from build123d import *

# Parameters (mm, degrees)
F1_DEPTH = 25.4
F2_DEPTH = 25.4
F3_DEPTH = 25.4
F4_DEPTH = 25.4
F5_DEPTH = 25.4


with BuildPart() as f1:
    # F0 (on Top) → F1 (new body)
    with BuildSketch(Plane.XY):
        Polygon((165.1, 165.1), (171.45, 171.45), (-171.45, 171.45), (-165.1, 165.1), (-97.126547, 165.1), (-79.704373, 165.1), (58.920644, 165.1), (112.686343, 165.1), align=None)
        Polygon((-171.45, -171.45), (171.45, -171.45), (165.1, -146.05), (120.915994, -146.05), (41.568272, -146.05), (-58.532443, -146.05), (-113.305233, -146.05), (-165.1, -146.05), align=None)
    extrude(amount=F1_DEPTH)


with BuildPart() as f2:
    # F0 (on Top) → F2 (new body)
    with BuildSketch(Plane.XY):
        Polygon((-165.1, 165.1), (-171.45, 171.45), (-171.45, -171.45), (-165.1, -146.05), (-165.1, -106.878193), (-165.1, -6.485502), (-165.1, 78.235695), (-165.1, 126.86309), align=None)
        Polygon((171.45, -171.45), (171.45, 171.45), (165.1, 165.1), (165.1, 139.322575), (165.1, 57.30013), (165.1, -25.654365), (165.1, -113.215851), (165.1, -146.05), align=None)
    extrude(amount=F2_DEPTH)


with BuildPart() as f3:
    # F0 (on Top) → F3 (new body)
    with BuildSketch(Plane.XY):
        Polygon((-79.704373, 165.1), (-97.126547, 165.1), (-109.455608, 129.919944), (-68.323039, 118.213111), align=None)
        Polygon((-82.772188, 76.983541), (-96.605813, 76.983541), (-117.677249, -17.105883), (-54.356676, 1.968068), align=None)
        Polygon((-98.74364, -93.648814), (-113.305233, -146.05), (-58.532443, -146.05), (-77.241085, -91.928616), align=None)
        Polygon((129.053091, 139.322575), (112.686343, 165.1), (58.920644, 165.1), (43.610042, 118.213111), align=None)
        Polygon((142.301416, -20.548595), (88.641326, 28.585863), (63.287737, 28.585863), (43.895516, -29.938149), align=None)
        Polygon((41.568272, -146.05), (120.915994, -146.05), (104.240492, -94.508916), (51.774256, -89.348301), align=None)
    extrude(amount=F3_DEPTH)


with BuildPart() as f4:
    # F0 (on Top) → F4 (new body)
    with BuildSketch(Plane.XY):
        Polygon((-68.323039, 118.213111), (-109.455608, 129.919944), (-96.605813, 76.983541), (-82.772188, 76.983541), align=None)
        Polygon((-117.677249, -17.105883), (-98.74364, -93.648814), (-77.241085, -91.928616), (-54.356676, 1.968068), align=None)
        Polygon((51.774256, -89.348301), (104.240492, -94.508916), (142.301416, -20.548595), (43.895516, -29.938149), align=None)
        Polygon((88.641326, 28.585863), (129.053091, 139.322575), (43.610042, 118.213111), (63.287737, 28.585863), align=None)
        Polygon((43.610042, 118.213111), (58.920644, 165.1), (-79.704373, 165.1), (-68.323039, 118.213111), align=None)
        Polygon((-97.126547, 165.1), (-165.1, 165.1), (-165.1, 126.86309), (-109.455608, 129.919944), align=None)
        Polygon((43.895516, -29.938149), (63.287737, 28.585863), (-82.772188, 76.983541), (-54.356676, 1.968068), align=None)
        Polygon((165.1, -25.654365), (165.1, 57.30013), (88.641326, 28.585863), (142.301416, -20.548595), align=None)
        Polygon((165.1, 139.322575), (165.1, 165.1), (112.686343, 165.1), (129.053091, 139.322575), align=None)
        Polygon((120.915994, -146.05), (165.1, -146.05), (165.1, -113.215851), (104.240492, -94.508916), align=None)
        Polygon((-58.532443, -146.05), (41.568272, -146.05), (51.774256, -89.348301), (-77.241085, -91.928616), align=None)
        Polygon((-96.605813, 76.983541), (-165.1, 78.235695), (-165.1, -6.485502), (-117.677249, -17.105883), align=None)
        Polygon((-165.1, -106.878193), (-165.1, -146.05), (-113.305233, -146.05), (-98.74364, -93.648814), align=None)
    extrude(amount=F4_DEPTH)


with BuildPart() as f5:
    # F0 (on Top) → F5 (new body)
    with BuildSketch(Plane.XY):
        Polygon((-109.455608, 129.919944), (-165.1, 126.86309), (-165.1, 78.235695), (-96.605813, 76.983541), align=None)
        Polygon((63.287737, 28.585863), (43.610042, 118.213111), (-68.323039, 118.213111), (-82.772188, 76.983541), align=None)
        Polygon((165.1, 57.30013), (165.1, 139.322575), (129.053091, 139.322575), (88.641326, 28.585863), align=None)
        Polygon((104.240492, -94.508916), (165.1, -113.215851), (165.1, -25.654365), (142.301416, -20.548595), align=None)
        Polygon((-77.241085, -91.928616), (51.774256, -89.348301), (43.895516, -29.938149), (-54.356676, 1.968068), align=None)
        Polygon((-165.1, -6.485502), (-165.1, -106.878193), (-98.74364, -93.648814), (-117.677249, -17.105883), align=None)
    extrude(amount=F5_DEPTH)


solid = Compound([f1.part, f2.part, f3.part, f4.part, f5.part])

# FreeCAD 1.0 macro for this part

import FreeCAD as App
import Part
import Sketcher
from FreeCAD import Vector
Q = App.Units.Quantity

doc = App.newDocument("Part")
body = doc.addObject("PartDesign::Body", "Body")
body.AllowCompound = True

# Sketch on XY plane
sketch1 = body.newObject("Sketcher::SketchObject", "Sketch")
sketch1.AttachmentSupport = (doc.getObject("XY_Plane"), [""])
sketch1.MapMode = "FlatFace"
sketch1.addGeometry(Part.LineSegment(Vector(165.1, 165.1, 0), Vector(171.45, 171.45, 0)), False)
sketch1.addGeometry(Part.LineSegment(Vector(171.45, 171.45, 0), Vector(-171.45, 171.45, 0)), False)
sketch1.addGeometry(Part.LineSegment(Vector(-171.45, 171.45, 0), Vector(-165.1, 165.1, 0)), False)
sketch1.addGeometry(Part.LineSegment(Vector(-165.1, 165.1, 0), Vector(165.1, 165.1, 0)), False)
sketch1.addGeometry(Part.LineSegment(Vector(-171.45, -171.45, 0), Vector(171.45, -171.45, 0)), False)
sketch1.addGeometry(Part.LineSegment(Vector(171.45, -171.45, 0), Vector(165.1, -146.05, 0)), False)
sketch1.addGeometry(Part.LineSegment(Vector(165.1, -146.05, 0), Vector(-165.1, -146.05, 0)), False)
sketch1.addGeometry(Part.LineSegment(Vector(-165.1, -146.05, 0), Vector(-171.45, -171.45, 0)), False)
sketch1.addConstraint(Sketcher.Constraint("Coincident", 0, 2, 1, 1))
sketch1.addConstraint(Sketcher.Constraint("Coincident", 1, 2, 2, 1))
sketch1.addConstraint(Sketcher.Constraint("Coincident", 2, 2, 3, 1))
sketch1.addConstraint(Sketcher.Constraint("Coincident", 3, 2, 0, 1))
sketch1.addConstraint(Sketcher.Constraint("Coincident", 4, 2, 5, 1))
sketch1.addConstraint(Sketcher.Constraint("Coincident", 5, 2, 6, 1))
sketch1.addConstraint(Sketcher.Constraint("Coincident", 6, 2, 7, 1))
sketch1.addConstraint(Sketcher.Constraint("Coincident", 7, 2, 4, 1))
sketch1.addConstraint(Sketcher.Constraint("Horizontal", 1))
sketch1.addConstraint(Sketcher.Constraint("Horizontal", 3))
sketch1.addConstraint(Sketcher.Constraint("Horizontal", 4))
sketch1.addConstraint(Sketcher.Constraint("Horizontal", 6))
sketch1.addConstraint(Sketcher.Constraint("Symmetric", 1, 2, 4, 2, -1, 1))
sketch1.addConstraint(Sketcher.Constraint("Perpendicular", 0, 2))
sketch1.addConstraint(Sketcher.Constraint("Vertical", 0, 2, 4, 2))
sketch1.addConstraint(Sketcher.Constraint("Vertical", 3, 2, 5, 2))
sketch1.addConstraint(Sketcher.Constraint("Vertical", 2, 2, 6, 2))
sketch1.addConstraint(Sketcher.Constraint("Vertical", 1, 2, 7, 2))
sketch1.addConstraint(Sketcher.Constraint("Equal", 0, 2))
sketch1.addConstraint(Sketcher.Constraint("DistanceX", 3, 1, 3, 2, Q("13 in")))
sketch1.addConstraint(Sketcher.Constraint("DistanceX", 1, 2, 1, 1, Q("13.5 in")))
sketch1.addConstraint(Sketcher.Constraint("DistanceY", 4, 2, 5, 2, Q("1 in")))
sketch1.addConstraint(Sketcher.Constraint("DistanceY", -1, 1, 2, 2, Q("6.5 in")))
pad1 = body.newObject("PartDesign::Pad", "Pad")
pad1.Profile = sketch1
pad1.Length = Q("1 in")
body2 = doc.addObject("PartDesign::Body", "Body001")
body2.AllowCompound = True

# Sketch on XY plane
sketch2 = body2.newObject("Sketcher::SketchObject", "Sketch001")
sketch2.AttachmentSupport = (doc.getObject("XY_Plane001"), [""])
sketch2.MapMode = "FlatFace"
sketch2.addGeometry(Part.LineSegment(Vector(-165.1, 165.1, 0), Vector(-171.45, 171.45, 0)), False)
sketch2.addGeometry(Part.LineSegment(Vector(-171.45, 171.45, 0), Vector(-171.45, -171.45, 0)), False)
sketch2.addGeometry(Part.LineSegment(Vector(-171.45, -171.45, 0), Vector(-165.1, -146.05, 0)), False)
sketch2.addGeometry(Part.LineSegment(Vector(-165.1, -146.05, 0), Vector(-165.1, 165.1, 0)), False)
sketch2.addGeometry(Part.LineSegment(Vector(171.45, -171.45, 0), Vector(171.45, 171.45, 0)), False)
sketch2.addGeometry(Part.LineSegment(Vector(171.45, 171.45, 0), Vector(165.1, 165.1, 0)), False)
sketch2.addGeometry(Part.LineSegment(Vector(165.1, 165.1, 0), Vector(165.1, -146.05, 0)), False)
sketch2.addGeometry(Part.LineSegment(Vector(165.1, -146.05, 0), Vector(171.45, -171.45, 0)), False)
sketch2.addConstraint(Sketcher.Constraint("Coincident", 0, 2, 1, 1))
sketch2.addConstraint(Sketcher.Constraint("Coincident", 1, 2, 2, 1))
sketch2.addConstraint(Sketcher.Constraint("Coincident", 2, 2, 3, 1))
sketch2.addConstraint(Sketcher.Constraint("Coincident", 3, 2, 0, 1))
sketch2.addConstraint(Sketcher.Constraint("Coincident", 4, 2, 5, 1))
sketch2.addConstraint(Sketcher.Constraint("Coincident", 5, 2, 6, 1))
sketch2.addConstraint(Sketcher.Constraint("Coincident", 6, 2, 7, 1))
sketch2.addConstraint(Sketcher.Constraint("Coincident", 7, 2, 4, 1))
sketch2.addConstraint(Sketcher.Constraint("Vertical", 1))
sketch2.addConstraint(Sketcher.Constraint("Vertical", 3))
sketch2.addConstraint(Sketcher.Constraint("Vertical", 4))
sketch2.addConstraint(Sketcher.Constraint("Vertical", 6))
sketch2.addConstraint(Sketcher.Constraint("Symmetric", 1, 2, 4, 2, -1, 1))
sketch2.addConstraint(Sketcher.Constraint("Symmetric", 3, 2, 5, 2, -2))
sketch2.addConstraint(Sketcher.Constraint("Perpendicular", 0, 5))
sketch2.addConstraint(Sketcher.Constraint("Horizontal", 0, 2, 4, 2))
sketch2.addConstraint(Sketcher.Constraint("Horizontal", 2, 2, 6, 2))
sketch2.addConstraint(Sketcher.Constraint("Horizontal", 1, 2, 7, 2))
sketch2.addConstraint(Sketcher.Constraint("DistanceY", 1, 2, 1, 1, Q("13.5 in")))
sketch2.addConstraint(Sketcher.Constraint("DistanceY", 1, 2, 2, 2, Q("1 in")))
sketch2.addConstraint(Sketcher.Constraint("DistanceX", 3, 2, 5, 2, Q("13 in")))
sketch2.addConstraint(Sketcher.Constraint("DistanceY", 3, 1, 3, 2, Q("12.25 in")))
pad2 = body2.newObject("PartDesign::Pad", "Pad001")
pad2.Profile = sketch2
pad2.Length = Q("1 in")
body3 = doc.addObject("PartDesign::Body", "Body002")
body3.AllowCompound = True

# Sketch on XY plane
sketch3 = body3.newObject("Sketcher::SketchObject", "Sketch002")
sketch3.AttachmentSupport = (doc.getObject("XY_Plane002"), [""])
sketch3.MapMode = "FlatFace"
sketch3.addGeometry(Part.LineSegment(Vector(-79.704373, 165.1, 0), Vector(-97.126547, 165.1, 0)), False)
sketch3.addGeometry(Part.LineSegment(Vector(-97.126547, 165.1, 0), Vector(-109.455608, 129.919944, 0)), False)
sketch3.addGeometry(Part.LineSegment(Vector(-109.455608, 129.919944, 0), Vector(-68.323039, 118.213111, 0)), False)
sketch3.addGeometry(Part.LineSegment(Vector(-68.323039, 118.213111, 0), Vector(-79.704373, 165.1, 0)), False)
sketch3.addGeometry(Part.LineSegment(Vector(-82.772188, 76.983541, 0), Vector(-96.605813, 76.983541, 0)), False)
sketch3.addGeometry(Part.LineSegment(Vector(-96.605813, 76.983541, 0), Vector(-117.677249, -17.105883, 0)), False)
sketch3.addGeometry(Part.LineSegment(Vector(-117.677249, -17.105883, 0), Vector(-54.356676, 1.968068, 0)), False)
sketch3.addGeometry(Part.LineSegment(Vector(-54.356676, 1.968068, 0), Vector(-82.772188, 76.983541, 0)), False)
sketch3.addGeometry(Part.LineSegment(Vector(-98.74364, -93.648814, 0), Vector(-113.305233, -146.05, 0)), False)
sketch3.addGeometry(Part.LineSegment(Vector(-113.305233, -146.05, 0), Vector(-58.532443, -146.05, 0)), False)
sketch3.addGeometry(Part.LineSegment(Vector(-58.532443, -146.05, 0), Vector(-77.241085, -91.928616, 0)), False)
sketch3.addGeometry(Part.LineSegment(Vector(-77.241085, -91.928616, 0), Vector(-98.74364, -93.648814, 0)), False)
sketch3.addGeometry(Part.LineSegment(Vector(129.053091, 139.322575, 0), Vector(112.686343, 165.1, 0)), False)
sketch3.addGeometry(Part.LineSegment(Vector(112.686343, 165.1, 0), Vector(58.920644, 165.1, 0)), False)
sketch3.addGeometry(Part.LineSegment(Vector(58.920644, 165.1, 0), Vector(43.610042, 118.213111, 0)), False)
sketch3.addGeometry(Part.LineSegment(Vector(43.610042, 118.213111, 0), Vector(129.053091, 139.322575, 0)), False)
sketch3.addGeometry(Part.LineSegment(Vector(142.301416, -20.548595, 0), Vector(88.641326, 28.585863, 0)), False)
sketch3.addGeometry(Part.LineSegment(Vector(88.641326, 28.585863, 0), Vector(63.287737, 28.585863, 0)), False)
sketch3.addGeometry(Part.LineSegment(Vector(63.287737, 28.585863, 0), Vector(43.895516, -29.938149, 0)), False)
sketch3.addGeometry(Part.LineSegment(Vector(43.895516, -29.938149, 0), Vector(142.301416, -20.548595, 0)), False)
sketch3.addGeometry(Part.LineSegment(Vector(41.568272, -146.05, 0), Vector(120.915994, -146.05, 0)), False)
sketch3.addGeometry(Part.LineSegment(Vector(120.915994, -146.05, 0), Vector(104.240492, -94.508916, 0)), False)
sketch3.addGeometry(Part.LineSegment(Vector(104.240492, -94.508916, 0), Vector(51.774256, -89.348301, 0)), False)
sketch3.addGeometry(Part.LineSegment(Vector(51.774256, -89.348301, 0), Vector(41.568272, -146.05, 0)), False)
sketch3.addConstraint(Sketcher.Constraint("Coincident", 0, 2, 1, 1))
sketch3.addConstraint(Sketcher.Constraint("Coincident", 1, 2, 2, 1))
sketch3.addConstraint(Sketcher.Constraint("Coincident", 2, 2, 3, 1))
sketch3.addConstraint(Sketcher.Constraint("Coincident", 3, 2, 0, 1))
sketch3.addConstraint(Sketcher.Constraint("Coincident", 4, 2, 5, 1))
sketch3.addConstraint(Sketcher.Constraint("Coincident", 5, 2, 6, 1))
sketch3.addConstraint(Sketcher.Constraint("Coincident", 6, 2, 7, 1))
sketch3.addConstraint(Sketcher.Constraint("Coincident", 7, 2, 4, 1))
sketch3.addConstraint(Sketcher.Constraint("Coincident", 8, 2, 9, 1))
sketch3.addConstraint(Sketcher.Constraint("Coincident", 9, 2, 10, 1))
sketch3.addConstraint(Sketcher.Constraint("Coincident", 10, 2, 11, 1))
sketch3.addConstraint(Sketcher.Constraint("Coincident", 11, 2, 8, 1))
sketch3.addConstraint(Sketcher.Constraint("Coincident", 12, 2, 13, 1))
sketch3.addConstraint(Sketcher.Constraint("Coincident", 13, 2, 14, 1))
sketch3.addConstraint(Sketcher.Constraint("Coincident", 14, 2, 15, 1))
sketch3.addConstraint(Sketcher.Constraint("Coincident", 15, 2, 12, 1))
sketch3.addConstraint(Sketcher.Constraint("Coincident", 16, 2, 17, 1))
sketch3.addConstraint(Sketcher.Constraint("Coincident", 17, 2, 18, 1))
sketch3.addConstraint(Sketcher.Constraint("Coincident", 18, 2, 19, 1))
sketch3.addConstraint(Sketcher.Constraint("Coincident", 19, 2, 16, 1))
sketch3.addConstraint(Sketcher.Constraint("Coincident", 20, 2, 21, 1))
sketch3.addConstraint(Sketcher.Constraint("Coincident", 21, 2, 22, 1))
sketch3.addConstraint(Sketcher.Constraint("Coincident", 22, 2, 23, 1))
sketch3.addConstraint(Sketcher.Constraint("Coincident", 23, 2, 20, 1))
sketch3.addConstraint(Sketcher.Constraint("Horizontal", 0))
sketch3.addConstraint(Sketcher.Constraint("Horizontal", 4))
sketch3.addConstraint(Sketcher.Constraint("Horizontal", 9))
sketch3.addConstraint(Sketcher.Constraint("Horizontal", 13))
sketch3.addConstraint(Sketcher.Constraint("Horizontal", 17))
sketch3.addConstraint(Sketcher.Constraint("Horizontal", 20))
sketch3.addConstraint(Sketcher.Constraint("Horizontal", 3, 2, 12, 2))
sketch3.addConstraint(Sketcher.Constraint("Horizontal", 2, 2, 14, 2))
sketch3.addConstraint(Sketcher.Constraint("Horizontal", 9, 2, 20, 2))
sketch3.addConstraint(Sketcher.Constraint("DistanceY", -1, 1, 0, 2, Q("6.5 in")))
sketch3.addConstraint(Sketcher.Constraint("DistanceY", 8, 2, -1, 1, Q("5.75 in")))
sketch3.addConstraint(Sketcher.Constraint("DistanceY", 19, 2, -1, 1, Q("0.8089998 in")))
sketch3.addConstraint(Sketcher.Constraint("DistanceX", 13, 2, 13, 1, 53.765699))
sketch3.addConstraint(Sketcher.Constraint("DistanceX", 22, 2, 21, 2, Q("2.0655998 in")))
sketch3.addConstraint(Sketcher.Constraint("DistanceX", 9, 1, 9, 2, 54.77279))
sketch3.addConstraint(Sketcher.Constraint("DistanceX", 17, 2, 17, 1, 25.353589))
sketch3.addConstraint(Sketcher.Constraint("DistanceY", 22, 2, -1, 1, 89.348301))
sketch3.addConstraint(Sketcher.Constraint("DistanceX", 14, 2, 12, 2, 69.076301))
sketch3.addConstraint(Sketcher.Constraint("DistanceX", 10, 2, 18, 2, 121.136601))
sketch3.addConstraint(Sketcher.Constraint("DistanceX", 18, 2, 19, 2, 98.4059))
sketch3.addConstraint(Sketcher.Constraint("DistanceX", 21, 2, 20, 2, 16.675502))
sketch3.addConstraint(Sketcher.Constraint("Distance", 6, 66.131011))
sketch3.addConstraint(Sketcher.Constraint("Distance", 7, 80.216971))
sketch3.addConstraint(Sketcher.Constraint("Distance", 14, 49.323371))
sketch3.addConstraint(Sketcher.Constraint("Distance", 16, 72.757132))
sketch3.addConstraint(Sketcher.Constraint("Distance", 18, 61.653209))
sketch3.addConstraint(Sketcher.Constraint("Distance", 21, 54.17154))
sketch3.addConstraint(Sketcher.Constraint("DistanceX", 0, 2, 0, 1, 17.422174))
sketch3.addConstraint(Sketcher.Constraint("DistanceX", 4, 2, 4, 1, 13.833625))
sketch3.addConstraint(Sketcher.Constraint("DistanceX", 20, 1, 20, 2, 79.347722))
sketch3.addConstraint(Sketcher.Constraint("DistanceX", 1, 2, -1, 1, 109.455608))
sketch3.addConstraint(Sketcher.Constraint("DistanceX", 2, 2, -1, 1, 68.323039))
sketch3.addConstraint(Sketcher.Constraint("DistanceY", -1, 1, 4, 2, 76.983541))
sketch3.addConstraint(Sketcher.Constraint("DistanceX", 5, 2, -1, 1, 117.677249))
sketch3.addConstraint(Sketcher.Constraint("DistanceX", 7, 2, -1, 1, 82.772188))
sketch3.addConstraint(Sketcher.Constraint("DistanceX", 11, 2, -1, 1, 98.74364))
sketch3.addConstraint(Sketcher.Constraint("DistanceX", -1, 1, 15, 2, 129.053091))
sketch3.addConstraint(Sketcher.Constraint("DistanceY", 18, 2, -1, 1, 29.938149))
sketch3.addConstraint(Sketcher.Constraint("DistanceX", 1, 2, 0, 2, 12.329061))
sketch3.addConstraint(Sketcher.Constraint("DistanceY", 5, 2, 6, 2, 19.073951))
sketch3.addConstraint(Sketcher.Constraint("DistanceX", 8, 2, 4, 2, 16.69942))
sketch3.addConstraint(Sketcher.Constraint("DistanceX", 10, 2, 9, 2, 18.708642))
sketch3.addConstraint(Sketcher.Constraint("DistanceY", 11, 2, 5, 2, 76.542931))
sketch3.addConstraint(Sketcher.Constraint("DistanceX", 2, 2, 12, 2, 181.009382))
sketch3.addConstraint(Sketcher.Constraint("DistanceY", 16, 2, 15, 2, 110.736712))
sketch3.addConstraint(Sketcher.Constraint("DistanceX", 20, 2, 19, 2, 21.385422))
sketch3.addConstraint(Sketcher.Constraint("Distance", 1, 37.277903))
sketch3.addConstraint(Sketcher.Constraint("Distance", 10, 57.263754))
pad3 = body3.newObject("PartDesign::Pad", "Pad002")
pad3.Profile = sketch3
pad3.Length = Q("1 in")
body4 = doc.addObject("PartDesign::Body", "Body003")
body4.AllowCompound = True

# Sketch on XY plane
sketch4 = body4.newObject("Sketcher::SketchObject", "Sketch003")
sketch4.AttachmentSupport = (doc.getObject("XY_Plane003"), [""])
sketch4.MapMode = "FlatFace"
sketch4.addGeometry(Part.LineSegment(Vector(-68.323039, 118.213111, 0), Vector(-109.455608, 129.919944, 0)), False)
sketch4.addGeometry(Part.LineSegment(Vector(-109.455608, 129.919944, 0), Vector(-96.605813, 76.983541, 0)), False)
sketch4.addGeometry(Part.LineSegment(Vector(-96.605813, 76.983541, 0), Vector(-82.772188, 76.983541, 0)), False)
sketch4.addGeometry(Part.LineSegment(Vector(-82.772188, 76.983541, 0), Vector(-68.323039, 118.213111, 0)), False)
sketch4.addGeometry(Part.LineSegment(Vector(-117.677249, -17.105883, 0), Vector(-98.74364, -93.648814, 0)), False)
sketch4.addGeometry(Part.LineSegment(Vector(-98.74364, -93.648814, 0), Vector(-77.241085, -91.928616, 0)), False)
sketch4.addGeometry(Part.LineSegment(Vector(-77.241085, -91.928616, 0), Vector(-54.356676, 1.968068, 0)), False)
sketch4.addGeometry(Part.LineSegment(Vector(-54.356676, 1.968068, 0), Vector(-117.677249, -17.105883, 0)), False)
sketch4.addGeometry(Part.LineSegment(Vector(51.774256, -89.348301, 0), Vector(104.240492, -94.508916, 0)), False)
sketch4.addGeometry(Part.LineSegment(Vector(104.240492, -94.508916, 0), Vector(142.301416, -20.548595, 0)), False)
sketch4.addGeometry(Part.LineSegment(Vector(142.301416, -20.548595, 0), Vector(43.895516, -29.938149, 0)), False)
sketch4.addGeometry(Part.LineSegment(Vector(43.895516, -29.938149, 0), Vector(51.774256, -89.348301, 0)), False)
sketch4.addGeometry(Part.LineSegment(Vector(88.641326, 28.585863, 0), Vector(129.053091, 139.322575, 0)), False)
sketch4.addGeometry(Part.LineSegment(Vector(129.053091, 139.322575, 0), Vector(43.610042, 118.213111, 0)), False)
sketch4.addGeometry(Part.LineSegment(Vector(43.610042, 118.213111, 0), Vector(63.287737, 28.585863, 0)), False)
sketch4.addGeometry(Part.LineSegment(Vector(63.287737, 28.585863, 0), Vector(88.641326, 28.585863, 0)), False)
sketch4.addGeometry(Part.LineSegment(Vector(43.610042, 118.213111, 0), Vector(58.920644, 165.1, 0)), False)
sketch4.addGeometry(Part.LineSegment(Vector(58.920644, 165.1, 0), Vector(-79.704373, 165.1, 0)), False)
sketch4.addGeometry(Part.LineSegment(Vector(-79.704373, 165.1, 0), Vector(-68.323039, 118.213111, 0)), False)
sketch4.addGeometry(Part.LineSegment(Vector(-68.323039, 118.213111, 0), Vector(43.610042, 118.213111, 0)), False)
sketch4.addGeometry(Part.LineSegment(Vector(-97.126547, 165.1, 0), Vector(-165.1, 165.1, 0)), False)
sketch4.addGeometry(Part.LineSegment(Vector(-165.1, 165.1, 0), Vector(-165.1, 126.86309, 0)), False)
sketch4.addGeometry(Part.LineSegment(Vector(-165.1, 126.86309, 0), Vector(-109.455608, 129.919944, 0)), False)
sketch4.addGeometry(Part.LineSegment(Vector(-109.455608, 129.919944, 0), Vector(-97.126547, 165.1, 0)), False)
sketch4.addGeometry(Part.LineSegment(Vector(43.895516, -29.938149, 0), Vector(63.287737, 28.585863, 0)), False)
sketch4.addGeometry(Part.LineSegment(Vector(63.287737, 28.585863, 0), Vector(-82.772188, 76.983541, 0)), False)
sketch4.addGeometry(Part.LineSegment(Vector(-82.772188, 76.983541, 0), Vector(-54.356676, 1.968068, 0)), False)
sketch4.addGeometry(Part.LineSegment(Vector(-54.356676, 1.968068, 0), Vector(43.895516, -29.938149, 0)), False)
sketch4.addGeometry(Part.LineSegment(Vector(165.1, -25.654365, 0), Vector(165.1, 57.30013, 0)), False)
sketch4.addGeometry(Part.LineSegment(Vector(165.1, 57.30013, 0), Vector(88.641326, 28.585863, 0)), False)
sketch4.addGeometry(Part.LineSegment(Vector(88.641326, 28.585863, 0), Vector(142.301416, -20.548595, 0)), False)
sketch4.addGeometry(Part.LineSegment(Vector(142.301416, -20.548595, 0), Vector(165.1, -25.654365, 0)), False)
sketch4.addGeometry(Part.LineSegment(Vector(165.1, 139.322575, 0), Vector(165.1, 165.1, 0)), False)
sketch4.addGeometry(Part.LineSegment(Vector(165.1, 165.1, 0), Vector(112.686343, 165.1, 0)), False)
sketch4.addGeometry(Part.LineSegment(Vector(112.686343, 165.1, 0), Vector(129.053091, 139.322575, 0)), False)
sketch4.addGeometry(Part.LineSegment(Vector(129.053091, 139.322575, 0), Vector(165.1, 139.322575, 0)), False)
sketch4.addGeometry(Part.LineSegment(Vector(120.915994, -146.05, 0), Vector(165.1, -146.05, 0)), False)
sketch4.addGeometry(Part.LineSegment(Vector(165.1, -146.05, 0), Vector(165.1, -113.215851, 0)), False)
sketch4.addGeometry(Part.LineSegment(Vector(165.1, -113.215851, 0), Vector(104.240492, -94.508916, 0)), False)
sketch4.addGeometry(Part.LineSegment(Vector(104.240492, -94.508916, 0), Vector(120.915994, -146.05, 0)), False)
sketch4.addGeometry(Part.LineSegment(Vector(-58.532443, -146.05, 0), Vector(41.568272, -146.05, 0)), False)
sketch4.addGeometry(Part.LineSegment(Vector(41.568272, -146.05, 0), Vector(51.774256, -89.348301, 0)), False)
sketch4.addGeometry(Part.LineSegment(Vector(51.774256, -89.348301, 0), Vector(-77.241085, -91.928616, 0)), False)
sketch4.addGeometry(Part.LineSegment(Vector(-77.241085, -91.928616, 0), Vector(-58.532443, -146.05, 0)), False)
sketch4.addGeometry(Part.LineSegment(Vector(-96.605813, 76.983541, 0), Vector(-165.1, 78.235695, 0)), False)
sketch4.addGeometry(Part.LineSegment(Vector(-165.1, 78.235695, 0), Vector(-165.1, -6.485502, 0)), False)
sketch4.addGeometry(Part.LineSegment(Vector(-165.1, -6.485502, 0), Vector(-117.677249, -17.105883, 0)), False)
sketch4.addGeometry(Part.LineSegment(Vector(-117.677249, -17.105883, 0), Vector(-96.605813, 76.983541, 0)), False)
sketch4.addGeometry(Part.LineSegment(Vector(-165.1, -106.878193, 0), Vector(-165.1, -146.05, 0)), False)
sketch4.addGeometry(Part.LineSegment(Vector(-165.1, -146.05, 0), Vector(-113.305233, -146.05, 0)), False)
sketch4.addGeometry(Part.LineSegment(Vector(-113.305233, -146.05, 0), Vector(-98.74364, -93.648814, 0)), False)
sketch4.addGeometry(Part.LineSegment(Vector(-98.74364, -93.648814, 0), Vector(-165.1, -106.878193, 0)), False)
sketch4.addConstraint(Sketcher.Constraint("Coincident", 0, 2, 1, 1))
sketch4.addConstraint(Sketcher.Constraint("Coincident", 1, 2, 2, 1))
sketch4.addConstraint(Sketcher.Constraint("Coincident", 2, 2, 3, 1))
sketch4.addConstraint(Sketcher.Constraint("Coincident", 3, 2, 0, 1))
sketch4.addConstraint(Sketcher.Constraint("Coincident", 4, 2, 5, 1))
sketch4.addConstraint(Sketcher.Constraint("Coincident", 5, 2, 6, 1))
sketch4.addConstraint(Sketcher.Constraint("Coincident", 6, 2, 7, 1))
sketch4.addConstraint(Sketcher.Constraint("Coincident", 7, 2, 4, 1))
sketch4.addConstraint(Sketcher.Constraint("Coincident", 8, 2, 9, 1))
sketch4.addConstraint(Sketcher.Constraint("Coincident", 9, 2, 10, 1))
sketch4.addConstraint(Sketcher.Constraint("Coincident", 10, 2, 11, 1))
sketch4.addConstraint(Sketcher.Constraint("Coincident", 11, 2, 8, 1))
sketch4.addConstraint(Sketcher.Constraint("Coincident", 12, 2, 13, 1))
sketch4.addConstraint(Sketcher.Constraint("Coincident", 13, 2, 14, 1))
sketch4.addConstraint(Sketcher.Constraint("Coincident", 14, 2, 15, 1))
sketch4.addConstraint(Sketcher.Constraint("Coincident", 15, 2, 12, 1))
sketch4.addConstraint(Sketcher.Constraint("Coincident", 16, 2, 17, 1))
sketch4.addConstraint(Sketcher.Constraint("Coincident", 17, 2, 18, 1))
sketch4.addConstraint(Sketcher.Constraint("Coincident", 18, 2, 19, 1))
sketch4.addConstraint(Sketcher.Constraint("Coincident", 19, 2, 16, 1))
sketch4.addConstraint(Sketcher.Constraint("Coincident", 20, 2, 21, 1))
sketch4.addConstraint(Sketcher.Constraint("Coincident", 21, 2, 22, 1))
sketch4.addConstraint(Sketcher.Constraint("Coincident", 22, 2, 23, 1))
sketch4.addConstraint(Sketcher.Constraint("Coincident", 23, 2, 20, 1))
sketch4.addConstraint(Sketcher.Constraint("Coincident", 24, 2, 25, 1))
sketch4.addConstraint(Sketcher.Constraint("Coincident", 25, 2, 26, 1))
sketch4.addConstraint(Sketcher.Constraint("Coincident", 26, 2, 27, 1))
sketch4.addConstraint(Sketcher.Constraint("Coincident", 27, 2, 24, 1))
sketch4.addConstraint(Sketcher.Constraint("Coincident", 28, 2, 29, 1))
sketch4.addConstraint(Sketcher.Constraint("Coincident", 29, 2, 30, 1))
sketch4.addConstraint(Sketcher.Constraint("Coincident", 30, 2, 31, 1))
sketch4.addConstraint(Sketcher.Constraint("Coincident", 31, 2, 28, 1))
sketch4.addConstraint(Sketcher.Constraint("Coincident", 32, 2, 33, 1))
sketch4.addConstraint(Sketcher.Constraint("Coincident", 33, 2, 34, 1))
sketch4.addConstraint(Sketcher.Constraint("Coincident", 34, 2, 35, 1))
sketch4.addConstraint(Sketcher.Constraint("Coincident", 35, 2, 32, 1))
sketch4.addConstraint(Sketcher.Constraint("Coincident", 36, 2, 37, 1))
sketch4.addConstraint(Sketcher.Constraint("Coincident", 37, 2, 38, 1))
sketch4.addConstraint(Sketcher.Constraint("Coincident", 38, 2, 39, 1))
sketch4.addConstraint(Sketcher.Constraint("Coincident", 39, 2, 36, 1))
sketch4.addConstraint(Sketcher.Constraint("Coincident", 40, 2, 41, 1))
sketch4.addConstraint(Sketcher.Constraint("Coincident", 41, 2, 42, 1))
sketch4.addConstraint(Sketcher.Constraint("Coincident", 42, 2, 43, 1))
sketch4.addConstraint(Sketcher.Constraint("Coincident", 43, 2, 40, 1))
sketch4.addConstraint(Sketcher.Constraint("Coincident", 44, 2, 45, 1))
sketch4.addConstraint(Sketcher.Constraint("Coincident", 45, 2, 46, 1))
sketch4.addConstraint(Sketcher.Constraint("Coincident", 46, 2, 47, 1))
sketch4.addConstraint(Sketcher.Constraint("Coincident", 47, 2, 44, 1))
sketch4.addConstraint(Sketcher.Constraint("Coincident", 48, 2, 49, 1))
sketch4.addConstraint(Sketcher.Constraint("Coincident", 49, 2, 50, 1))
sketch4.addConstraint(Sketcher.Constraint("Coincident", 50, 2, 51, 1))
sketch4.addConstraint(Sketcher.Constraint("Coincident", 51, 2, 48, 1))
sketch4.addConstraint(Sketcher.Constraint("Horizontal", 2))
sketch4.addConstraint(Sketcher.Constraint("Horizontal", 15))
sketch4.addConstraint(Sketcher.Constraint("Horizontal", 17))
sketch4.addConstraint(Sketcher.Constraint("Horizontal", 19))
sketch4.addConstraint(Sketcher.Constraint("Horizontal", 20))
sketch4.addConstraint(Sketcher.Constraint("Vertical", 21))
sketch4.addConstraint(Sketcher.Constraint("Vertical", 28))
sketch4.addConstraint(Sketcher.Constraint("Vertical", 32))
sketch4.addConstraint(Sketcher.Constraint("Horizontal", 33))
sketch4.addConstraint(Sketcher.Constraint("Horizontal", 35))
sketch4.addConstraint(Sketcher.Constraint("Horizontal", 36))
sketch4.addConstraint(Sketcher.Constraint("Vertical", 37))
sketch4.addConstraint(Sketcher.Constraint("Horizontal", 40))
sketch4.addConstraint(Sketcher.Constraint("Vertical", 45))
sketch4.addConstraint(Sketcher.Constraint("Vertical", 48))
sketch4.addConstraint(Sketcher.Constraint("Horizontal", 49))
sketch4.addConstraint(Sketcher.Constraint("Coincident", 18, 2, 3, 2))
sketch4.addConstraint(Sketcher.Constraint("Coincident", 19, 2, 13, 2))
sketch4.addConstraint(Sketcher.Constraint("Coincident", 22, 2, 0, 2))
sketch4.addConstraint(Sketcher.Constraint("Coincident", 24, 2, 14, 2))
sketch4.addConstraint(Sketcher.Constraint("Coincident", 25, 2, 2, 2))
sketch4.addConstraint(Sketcher.Constraint("Coincident", 26, 2, 6, 2))
sketch4.addConstraint(Sketcher.Constraint("Coincident", 27, 2, 10, 2))
sketch4.addConstraint(Sketcher.Constraint("Coincident", 29, 2, 15, 2))
sketch4.addConstraint(Sketcher.Constraint("Coincident", 30, 2, 9, 2))
sketch4.addConstraint(Sketcher.Constraint("Coincident", 34, 2, 12, 2))
sketch4.addConstraint(Sketcher.Constraint("Coincident", 38, 2, 8, 2))
sketch4.addConstraint(Sketcher.Constraint("Coincident", 41, 2, 11, 2))
sketch4.addConstraint(Sketcher.Constraint("Coincident", 42, 2, 5, 2))
sketch4.addConstraint(Sketcher.Constraint("Coincident", 46, 2, 7, 2))
sketch4.addConstraint(Sketcher.Constraint("Coincident", 47, 2, 1, 2))
sketch4.addConstraint(Sketcher.Constraint("Coincident", 50, 2, 4, 2))
sketch4.addConstraint(Sketcher.Constraint("DistanceY", -1, 1, 16, 2, Q("6.5 in")))
sketch4.addConstraint(Sketcher.Constraint("DistanceX", 20, 2, -1, 1, Q("6.5 in")))
sketch4.addConstraint(Sketcher.Constraint("DistanceY", -1, 1, 20, 2, Q("6.5 in")))
sketch4.addConstraint(Sketcher.Constraint("DistanceX", -1, 1, 28, 2, Q("6.5 in")))
sketch4.addConstraint(Sketcher.Constraint("DistanceX", -1, 1, 32, 2, Q("6.5 in")))
sketch4.addConstraint(Sketcher.Constraint("DistanceY", -1, 1, 32, 2, Q("6.5 in")))
sketch4.addConstraint(Sketcher.Constraint("DistanceX", -1, 1, 36, 2, Q("6.5 in")))
sketch4.addConstraint(Sketcher.Constraint("DistanceX", 44, 2, -1, 1, Q("6.5 in")))
sketch4.addConstraint(Sketcher.Constraint("DistanceX", 48, 2, -1, 1, Q("6.5 in")))
sketch4.addConstraint(Sketcher.Constraint("DistanceY", 36, 2, -1, 1, Q("5.75 in")))
sketch4.addConstraint(Sketcher.Constraint("DistanceY", 40, 2, -1, 1, Q("5.75 in")))
sketch4.addConstraint(Sketcher.Constraint("DistanceY", 48, 2, -1, 1, Q("5.75 in")))
sketch4.addConstraint(Sketcher.Constraint("DistanceY", 9, 2, -1, 1, Q("0.8089998 in")))
sketch4.addConstraint(Sketcher.Constraint("DistanceX", 11, 2, 8, 2, Q("2.0655998 in")))
sketch4.addConstraint(Sketcher.Constraint("Distance", 11, 59.930299))
sketch4.addConstraint(Sketcher.Constraint("DistanceX", 15, 1, 15, 2, 25.353589))
sketch4.addConstraint(Sketcher.Constraint("DistanceX", 19, 1, 19, 2, 111.933081))
sketch4.addConstraint(Sketcher.Constraint("DistanceX", 35, 1, 35, 2, 36.046909))
sketch4.addConstraint(Sketcher.Constraint("DistanceY", 21, 2, 21, 1, 38.23691))
sketch4.addConstraint(Sketcher.Constraint("DistanceY", 37, 1, 37, 2, 32.834149))
sketch4.addConstraint(Sketcher.Constraint("DistanceY", 11, 2, -1, 1, 89.348301))
sketch4.addConstraint(Sketcher.Constraint("DistanceX", 4, 2, 3, 2, 30.420601))
sketch4.addConstraint(Sketcher.Constraint("DistanceY", 8, 2, 5, 2, 2.5803))
sketch4.addConstraint(Sketcher.Constraint("DistanceY", 8, 2, 4, 2, 0.860102))
sketch4.addConstraint(Sketcher.Constraint("DistanceX", 5, 2, 9, 2, 219.542501))
sketch4.addConstraint(Sketcher.Constraint("DistanceX", 10, 2, 9, 2, 98.4059))
sketch4.addConstraint(Sketcher.Constraint("DistanceX", 16, 2, 33, 2, 53.765699))
sketch4.addConstraint(Sketcher.Constraint("DistanceX", 13, 2, 33, 2, 69.076301))
sketch4.addConstraint(Sketcher.Constraint("DistanceX", 8, 2, 39, 2, 16.675502))
sketch4.addConstraint(Sketcher.Constraint("DistanceX", 43, 2, 11, 2, 110.306699))
sketch4.addConstraint(Sketcher.Constraint("Distance", 3, 43.68816))
sketch4.addConstraint(Sketcher.Constraint("Distance", 4, 78.849869))
sketch4.addConstraint(Sketcher.Constraint("Distance", 6, 96.645142))
sketch4.addConstraint(Sketcher.Constraint("Distance", 7, 66.131011))
sketch4.addConstraint(Sketcher.Constraint("Distance", 12, 117.880152))
sketch4.addConstraint(Sketcher.Constraint("Distance", 14, 91.761949))
sketch4.addConstraint(Sketcher.Constraint("Distance", 16, 49.323371))
sketch4.addConstraint(Sketcher.Constraint("Distance", 24, 61.653209))
sketch4.addConstraint(Sketcher.Constraint("Distance", 26, 80.216971))
sketch4.addConstraint(Sketcher.Constraint("Distance", 29, 81.672749))
sketch4.addConstraint(Sketcher.Constraint("Distance", 30, 72.757132))
sketch4.addConstraint(Sketcher.Constraint("Distance", 31, 23.363311))
sketch4.addConstraint(Sketcher.Constraint("Distance", 39, 54.17154))
sketch4.addConstraint(Sketcher.Constraint("Distance", 42, 129.041142))
sketch4.addConstraint(Sketcher.Constraint("Distance", 44, 68.505631))
sketch4.addConstraint(Sketcher.Constraint("Distance", 51, 67.662271))
sketch4.addConstraint(Sketcher.Constraint("DistanceX", 2, 1, 2, 2, 13.833625))
sketch4.addConstraint(Sketcher.Constraint("DistanceX", 17, 2, 17, 1, 138.625017))
sketch4.addConstraint(Sketcher.Constraint("DistanceX", 20, 2, 20, 1, 67.973453))
sketch4.addConstraint(Sketcher.Constraint("DistanceX", 33, 2, 33, 1, 52.413657))
sketch4.addConstraint(Sketcher.Constraint("DistanceX", 40, 1, 40, 2, 100.100715))
sketch4.addConstraint(Sketcher.Constraint("DistanceX", 49, 1, 49, 2, 51.794767))
sketch4.addConstraint(Sketcher.Constraint("DistanceY", 45, 2, 45, 1, 84.721197))
sketch4.addConstraint(Sketcher.Constraint("DistanceX", 0, 2, -1, 1, 109.455608))
sketch4.addConstraint(Sketcher.Constraint("DistanceY", -1, 1, 1, 2, 76.983541))
sketch4.addConstraint(Sketcher.Constraint("DistanceY", 4, 2, 0, 2, 223.568758))
pad4 = body4.newObject("PartDesign::Pad", "Pad003")
pad4.Profile = sketch4
pad4.Length = Q("1 in")
body5 = doc.addObject("PartDesign::Body", "Body004")
body5.AllowCompound = True

# Sketch on XY plane
sketch5 = body5.newObject("Sketcher::SketchObject", "Sketch004")
sketch5.AttachmentSupport = (doc.getObject("XY_Plane004"), [""])
sketch5.MapMode = "FlatFace"
sketch5.addGeometry(Part.LineSegment(Vector(-109.455608, 129.919944, 0), Vector(-165.1, 126.86309, 0)), False)
sketch5.addGeometry(Part.LineSegment(Vector(-165.1, 126.86309, 0), Vector(-165.1, 78.235695, 0)), False)
sketch5.addGeometry(Part.LineSegment(Vector(-165.1, 78.235695, 0), Vector(-96.605813, 76.983541, 0)), False)
sketch5.addGeometry(Part.LineSegment(Vector(-96.605813, 76.983541, 0), Vector(-109.455608, 129.919944, 0)), False)
sketch5.addGeometry(Part.LineSegment(Vector(63.287737, 28.585863, 0), Vector(43.610042, 118.213111, 0)), False)
sketch5.addGeometry(Part.LineSegment(Vector(43.610042, 118.213111, 0), Vector(-68.323039, 118.213111, 0)), False)
sketch5.addGeometry(Part.LineSegment(Vector(-68.323039, 118.213111, 0), Vector(-82.772188, 76.983541, 0)), False)
sketch5.addGeometry(Part.LineSegment(Vector(-82.772188, 76.983541, 0), Vector(63.287737, 28.585863, 0)), False)
sketch5.addGeometry(Part.LineSegment(Vector(165.1, 57.30013, 0), Vector(165.1, 139.322575, 0)), False)
sketch5.addGeometry(Part.LineSegment(Vector(165.1, 139.322575, 0), Vector(129.053091, 139.322575, 0)), False)
sketch5.addGeometry(Part.LineSegment(Vector(129.053091, 139.322575, 0), Vector(88.641326, 28.585863, 0)), False)
sketch5.addGeometry(Part.LineSegment(Vector(88.641326, 28.585863, 0), Vector(165.1, 57.30013, 0)), False)
sketch5.addGeometry(Part.LineSegment(Vector(104.240492, -94.508916, 0), Vector(165.1, -113.215851, 0)), False)
sketch5.addGeometry(Part.LineSegment(Vector(165.1, -113.215851, 0), Vector(165.1, -25.654365, 0)), False)
sketch5.addGeometry(Part.LineSegment(Vector(165.1, -25.654365, 0), Vector(142.301416, -20.548595, 0)), False)
sketch5.addGeometry(Part.LineSegment(Vector(142.301416, -20.548595, 0), Vector(104.240492, -94.508916, 0)), False)
sketch5.addGeometry(Part.LineSegment(Vector(-77.241085, -91.928616, 0), Vector(51.774256, -89.348301, 0)), False)
sketch5.addGeometry(Part.LineSegment(Vector(51.774256, -89.348301, 0), Vector(43.895516, -29.938149, 0)), False)
sketch5.addGeometry(Part.LineSegment(Vector(43.895516, -29.938149, 0), Vector(-54.356676, 1.968068, 0)), False)
sketch5.addGeometry(Part.LineSegment(Vector(-54.356676, 1.968068, 0), Vector(-77.241085, -91.928616, 0)), False)
sketch5.addGeometry(Part.LineSegment(Vector(-165.1, -6.485502, 0), Vector(-165.1, -106.878193, 0)), False)
sketch5.addGeometry(Part.LineSegment(Vector(-165.1, -106.878193, 0), Vector(-98.74364, -93.648814, 0)), False)
sketch5.addGeometry(Part.LineSegment(Vector(-98.74364, -93.648814, 0), Vector(-117.677249, -17.105883, 0)), False)
sketch5.addGeometry(Part.LineSegment(Vector(-117.677249, -17.105883, 0), Vector(-165.1, -6.485502, 0)), False)
sketch5.addConstraint(Sketcher.Constraint("Coincident", 0, 2, 1, 1))
sketch5.addConstraint(Sketcher.Constraint("Coincident", 1, 2, 2, 1))
sketch5.addConstraint(Sketcher.Constraint("Coincident", 2, 2, 3, 1))
sketch5.addConstraint(Sketcher.Constraint("Coincident", 3, 2, 0, 1))
sketch5.addConstraint(Sketcher.Constraint("Coincident", 4, 2, 5, 1))
sketch5.addConstraint(Sketcher.Constraint("Coincident", 5, 2, 6, 1))
sketch5.addConstraint(Sketcher.Constraint("Coincident", 6, 2, 7, 1))
sketch5.addConstraint(Sketcher.Constraint("Coincident", 7, 2, 4, 1))
sketch5.addConstraint(Sketcher.Constraint("Coincident", 8, 2, 9, 1))
sketch5.addConstraint(Sketcher.Constraint("Coincident", 9, 2, 10, 1))
sketch5.addConstraint(Sketcher.Constraint("Coincident", 10, 2, 11, 1))
sketch5.addConstraint(Sketcher.Constraint("Coincident", 11, 2, 8, 1))
sketch5.addConstraint(Sketcher.Constraint("Coincident", 12, 2, 13, 1))
sketch5.addConstraint(Sketcher.Constraint("Coincident", 13, 2, 14, 1))
sketch5.addConstraint(Sketcher.Constraint("Coincident", 14, 2, 15, 1))
sketch5.addConstraint(Sketcher.Constraint("Coincident", 15, 2, 12, 1))
sketch5.addConstraint(Sketcher.Constraint("Coincident", 16, 2, 17, 1))
sketch5.addConstraint(Sketcher.Constraint("Coincident", 17, 2, 18, 1))
sketch5.addConstraint(Sketcher.Constraint("Coincident", 18, 2, 19, 1))
sketch5.addConstraint(Sketcher.Constraint("Coincident", 19, 2, 16, 1))
sketch5.addConstraint(Sketcher.Constraint("Coincident", 20, 2, 21, 1))
sketch5.addConstraint(Sketcher.Constraint("Coincident", 21, 2, 22, 1))
sketch5.addConstraint(Sketcher.Constraint("Coincident", 22, 2, 23, 1))
sketch5.addConstraint(Sketcher.Constraint("Coincident", 23, 2, 20, 1))
sketch5.addConstraint(Sketcher.Constraint("Vertical", 1))
sketch5.addConstraint(Sketcher.Constraint("Horizontal", 5))
sketch5.addConstraint(Sketcher.Constraint("Vertical", 8))
sketch5.addConstraint(Sketcher.Constraint("Horizontal", 9))
sketch5.addConstraint(Sketcher.Constraint("Vertical", 13))
sketch5.addConstraint(Sketcher.Constraint("Vertical", 20))
sketch5.addConstraint(Sketcher.Constraint("Parallel", 14, 23))
sketch5.addConstraint(Sketcher.Constraint("Horizontal", 2, 2, 6, 2))
sketch5.addConstraint(Sketcher.Constraint("Horizontal", 7, 2, 10, 2))
sketch5.addConstraint(Sketcher.Constraint("Vertical", 11, 2, 12, 2))
sketch5.addConstraint(Sketcher.Constraint("Vertical", 1, 2, 20, 2))
sketch5.addConstraint(Sketcher.Constraint("DistanceX", 0, 2, -1, 1, Q("6.5 in")))
sketch5.addConstraint(Sketcher.Constraint("DistanceX", -1, 1, 8, 2, Q("6.5 in")))
sketch5.addConstraint(Sketcher.Constraint("DistanceY", 14, 2, -1, 1, Q("0.8089998 in")))
sketch5.addConstraint(Sketcher.Constraint("DistanceX", 16, 2, 15, 2, Q("2.0655998 in")))
sketch5.addConstraint(Sketcher.Constraint("Distance", 17, 59.930299))
sketch5.addConstraint(Sketcher.Constraint("DistanceX", 5, 2, 5, 1, 111.933081))
sketch5.addConstraint(Sketcher.Constraint("DistanceX", 9, 2, 9, 1, 36.046909))
sketch5.addConstraint(Sketcher.Constraint("DistanceY", 20, 2, 20, 1, 100.392691))
sketch5.addConstraint(Sketcher.Constraint("DistanceY", 16, 2, -1, 1, 89.348301))
sketch5.addConstraint(Sketcher.Constraint("DistanceX", 17, 2, 14, 2, 98.4059))
sketch5.addConstraint(Sketcher.Constraint("DistanceX", 19, 2, 17, 2, 121.136601))
sketch5.addConstraint(Sketcher.Constraint("Distance", 2, 68.505631))
sketch5.addConstraint(Sketcher.Constraint("Distance", 4, 91.761949))
sketch5.addConstraint(Sketcher.Constraint("Distance", 6, 43.68816))
sketch5.addConstraint(Sketcher.Constraint("Distance", 10, 117.880152))
sketch5.addConstraint(Sketcher.Constraint("Distance", 11, 81.672749))
sketch5.addConstraint(Sketcher.Constraint("Distance", 14, 23.363311))
sketch5.addConstraint(Sketcher.Constraint("Distance", 16, 129.041142))
sketch5.addConstraint(Sketcher.Constraint("Distance", 19, 96.645142))
sketch5.addConstraint(Sketcher.Constraint("Distance", 21, 67.662271))
sketch5.addConstraint(Sketcher.Constraint("Distance", 22, 78.849869))
sketch5.addConstraint(Sketcher.Constraint("DistanceY", 1, 2, 1, 1, 48.627395))
sketch5.addConstraint(Sketcher.Constraint("DistanceY", 8, 1, 8, 2, 82.022445))
sketch5.addConstraint(Sketcher.Constraint("DistanceY", 13, 1, 13, 2, 87.561486))
sketch5.addConstraint(Sketcher.Constraint("DistanceY", -1, 1, 0, 2, 126.86309))
sketch5.addConstraint(Sketcher.Constraint("DistanceY", -1, 1, 2, 2, 76.983541))
sketch5.addConstraint(Sketcher.Constraint("DistanceX", 3, 2, -1, 1, 109.455608))
sketch5.addConstraint(Sketcher.Constraint("DistanceY", -1, 1, 4, 2, 118.213111))
sketch5.addConstraint(Sketcher.Constraint("DistanceX", 5, 2, -1, 1, 68.323039))
sketch5.addConstraint(Sketcher.Constraint("DistanceY", -1, 1, 11, 2, 57.30013))
sketch5.addConstraint(Sketcher.Constraint("DistanceY", 12, 2, -1, 1, 113.215851))
sketch5.addConstraint(Sketcher.Constraint("DistanceX", 21, 2, -1, 1, 98.74364))
sketch5.addConstraint(Sketcher.Constraint("DistanceY", 1, 2, 3, 2, 51.684249))
sketch5.addConstraint(Sketcher.Constraint("DistanceY", 15, 2, 14, 2, 73.960321))
sketch5.addConstraint(Sketcher.Constraint("DistanceX", 16, 2, 14, 2, 90.52716))
sketch5.addConstraint(Sketcher.Constraint("DistanceX", 6, 2, 18, 2, 28.415512))
sketch5.addConstraint(Sketcher.Constraint("DistanceY", 20, 2, 18, 2, 108.846261))
pad5 = body5.newObject("PartDesign::Pad", "Pad004")
pad5.Profile = sketch5
pad5.Length = Q("1 in")

doc.recompute()
